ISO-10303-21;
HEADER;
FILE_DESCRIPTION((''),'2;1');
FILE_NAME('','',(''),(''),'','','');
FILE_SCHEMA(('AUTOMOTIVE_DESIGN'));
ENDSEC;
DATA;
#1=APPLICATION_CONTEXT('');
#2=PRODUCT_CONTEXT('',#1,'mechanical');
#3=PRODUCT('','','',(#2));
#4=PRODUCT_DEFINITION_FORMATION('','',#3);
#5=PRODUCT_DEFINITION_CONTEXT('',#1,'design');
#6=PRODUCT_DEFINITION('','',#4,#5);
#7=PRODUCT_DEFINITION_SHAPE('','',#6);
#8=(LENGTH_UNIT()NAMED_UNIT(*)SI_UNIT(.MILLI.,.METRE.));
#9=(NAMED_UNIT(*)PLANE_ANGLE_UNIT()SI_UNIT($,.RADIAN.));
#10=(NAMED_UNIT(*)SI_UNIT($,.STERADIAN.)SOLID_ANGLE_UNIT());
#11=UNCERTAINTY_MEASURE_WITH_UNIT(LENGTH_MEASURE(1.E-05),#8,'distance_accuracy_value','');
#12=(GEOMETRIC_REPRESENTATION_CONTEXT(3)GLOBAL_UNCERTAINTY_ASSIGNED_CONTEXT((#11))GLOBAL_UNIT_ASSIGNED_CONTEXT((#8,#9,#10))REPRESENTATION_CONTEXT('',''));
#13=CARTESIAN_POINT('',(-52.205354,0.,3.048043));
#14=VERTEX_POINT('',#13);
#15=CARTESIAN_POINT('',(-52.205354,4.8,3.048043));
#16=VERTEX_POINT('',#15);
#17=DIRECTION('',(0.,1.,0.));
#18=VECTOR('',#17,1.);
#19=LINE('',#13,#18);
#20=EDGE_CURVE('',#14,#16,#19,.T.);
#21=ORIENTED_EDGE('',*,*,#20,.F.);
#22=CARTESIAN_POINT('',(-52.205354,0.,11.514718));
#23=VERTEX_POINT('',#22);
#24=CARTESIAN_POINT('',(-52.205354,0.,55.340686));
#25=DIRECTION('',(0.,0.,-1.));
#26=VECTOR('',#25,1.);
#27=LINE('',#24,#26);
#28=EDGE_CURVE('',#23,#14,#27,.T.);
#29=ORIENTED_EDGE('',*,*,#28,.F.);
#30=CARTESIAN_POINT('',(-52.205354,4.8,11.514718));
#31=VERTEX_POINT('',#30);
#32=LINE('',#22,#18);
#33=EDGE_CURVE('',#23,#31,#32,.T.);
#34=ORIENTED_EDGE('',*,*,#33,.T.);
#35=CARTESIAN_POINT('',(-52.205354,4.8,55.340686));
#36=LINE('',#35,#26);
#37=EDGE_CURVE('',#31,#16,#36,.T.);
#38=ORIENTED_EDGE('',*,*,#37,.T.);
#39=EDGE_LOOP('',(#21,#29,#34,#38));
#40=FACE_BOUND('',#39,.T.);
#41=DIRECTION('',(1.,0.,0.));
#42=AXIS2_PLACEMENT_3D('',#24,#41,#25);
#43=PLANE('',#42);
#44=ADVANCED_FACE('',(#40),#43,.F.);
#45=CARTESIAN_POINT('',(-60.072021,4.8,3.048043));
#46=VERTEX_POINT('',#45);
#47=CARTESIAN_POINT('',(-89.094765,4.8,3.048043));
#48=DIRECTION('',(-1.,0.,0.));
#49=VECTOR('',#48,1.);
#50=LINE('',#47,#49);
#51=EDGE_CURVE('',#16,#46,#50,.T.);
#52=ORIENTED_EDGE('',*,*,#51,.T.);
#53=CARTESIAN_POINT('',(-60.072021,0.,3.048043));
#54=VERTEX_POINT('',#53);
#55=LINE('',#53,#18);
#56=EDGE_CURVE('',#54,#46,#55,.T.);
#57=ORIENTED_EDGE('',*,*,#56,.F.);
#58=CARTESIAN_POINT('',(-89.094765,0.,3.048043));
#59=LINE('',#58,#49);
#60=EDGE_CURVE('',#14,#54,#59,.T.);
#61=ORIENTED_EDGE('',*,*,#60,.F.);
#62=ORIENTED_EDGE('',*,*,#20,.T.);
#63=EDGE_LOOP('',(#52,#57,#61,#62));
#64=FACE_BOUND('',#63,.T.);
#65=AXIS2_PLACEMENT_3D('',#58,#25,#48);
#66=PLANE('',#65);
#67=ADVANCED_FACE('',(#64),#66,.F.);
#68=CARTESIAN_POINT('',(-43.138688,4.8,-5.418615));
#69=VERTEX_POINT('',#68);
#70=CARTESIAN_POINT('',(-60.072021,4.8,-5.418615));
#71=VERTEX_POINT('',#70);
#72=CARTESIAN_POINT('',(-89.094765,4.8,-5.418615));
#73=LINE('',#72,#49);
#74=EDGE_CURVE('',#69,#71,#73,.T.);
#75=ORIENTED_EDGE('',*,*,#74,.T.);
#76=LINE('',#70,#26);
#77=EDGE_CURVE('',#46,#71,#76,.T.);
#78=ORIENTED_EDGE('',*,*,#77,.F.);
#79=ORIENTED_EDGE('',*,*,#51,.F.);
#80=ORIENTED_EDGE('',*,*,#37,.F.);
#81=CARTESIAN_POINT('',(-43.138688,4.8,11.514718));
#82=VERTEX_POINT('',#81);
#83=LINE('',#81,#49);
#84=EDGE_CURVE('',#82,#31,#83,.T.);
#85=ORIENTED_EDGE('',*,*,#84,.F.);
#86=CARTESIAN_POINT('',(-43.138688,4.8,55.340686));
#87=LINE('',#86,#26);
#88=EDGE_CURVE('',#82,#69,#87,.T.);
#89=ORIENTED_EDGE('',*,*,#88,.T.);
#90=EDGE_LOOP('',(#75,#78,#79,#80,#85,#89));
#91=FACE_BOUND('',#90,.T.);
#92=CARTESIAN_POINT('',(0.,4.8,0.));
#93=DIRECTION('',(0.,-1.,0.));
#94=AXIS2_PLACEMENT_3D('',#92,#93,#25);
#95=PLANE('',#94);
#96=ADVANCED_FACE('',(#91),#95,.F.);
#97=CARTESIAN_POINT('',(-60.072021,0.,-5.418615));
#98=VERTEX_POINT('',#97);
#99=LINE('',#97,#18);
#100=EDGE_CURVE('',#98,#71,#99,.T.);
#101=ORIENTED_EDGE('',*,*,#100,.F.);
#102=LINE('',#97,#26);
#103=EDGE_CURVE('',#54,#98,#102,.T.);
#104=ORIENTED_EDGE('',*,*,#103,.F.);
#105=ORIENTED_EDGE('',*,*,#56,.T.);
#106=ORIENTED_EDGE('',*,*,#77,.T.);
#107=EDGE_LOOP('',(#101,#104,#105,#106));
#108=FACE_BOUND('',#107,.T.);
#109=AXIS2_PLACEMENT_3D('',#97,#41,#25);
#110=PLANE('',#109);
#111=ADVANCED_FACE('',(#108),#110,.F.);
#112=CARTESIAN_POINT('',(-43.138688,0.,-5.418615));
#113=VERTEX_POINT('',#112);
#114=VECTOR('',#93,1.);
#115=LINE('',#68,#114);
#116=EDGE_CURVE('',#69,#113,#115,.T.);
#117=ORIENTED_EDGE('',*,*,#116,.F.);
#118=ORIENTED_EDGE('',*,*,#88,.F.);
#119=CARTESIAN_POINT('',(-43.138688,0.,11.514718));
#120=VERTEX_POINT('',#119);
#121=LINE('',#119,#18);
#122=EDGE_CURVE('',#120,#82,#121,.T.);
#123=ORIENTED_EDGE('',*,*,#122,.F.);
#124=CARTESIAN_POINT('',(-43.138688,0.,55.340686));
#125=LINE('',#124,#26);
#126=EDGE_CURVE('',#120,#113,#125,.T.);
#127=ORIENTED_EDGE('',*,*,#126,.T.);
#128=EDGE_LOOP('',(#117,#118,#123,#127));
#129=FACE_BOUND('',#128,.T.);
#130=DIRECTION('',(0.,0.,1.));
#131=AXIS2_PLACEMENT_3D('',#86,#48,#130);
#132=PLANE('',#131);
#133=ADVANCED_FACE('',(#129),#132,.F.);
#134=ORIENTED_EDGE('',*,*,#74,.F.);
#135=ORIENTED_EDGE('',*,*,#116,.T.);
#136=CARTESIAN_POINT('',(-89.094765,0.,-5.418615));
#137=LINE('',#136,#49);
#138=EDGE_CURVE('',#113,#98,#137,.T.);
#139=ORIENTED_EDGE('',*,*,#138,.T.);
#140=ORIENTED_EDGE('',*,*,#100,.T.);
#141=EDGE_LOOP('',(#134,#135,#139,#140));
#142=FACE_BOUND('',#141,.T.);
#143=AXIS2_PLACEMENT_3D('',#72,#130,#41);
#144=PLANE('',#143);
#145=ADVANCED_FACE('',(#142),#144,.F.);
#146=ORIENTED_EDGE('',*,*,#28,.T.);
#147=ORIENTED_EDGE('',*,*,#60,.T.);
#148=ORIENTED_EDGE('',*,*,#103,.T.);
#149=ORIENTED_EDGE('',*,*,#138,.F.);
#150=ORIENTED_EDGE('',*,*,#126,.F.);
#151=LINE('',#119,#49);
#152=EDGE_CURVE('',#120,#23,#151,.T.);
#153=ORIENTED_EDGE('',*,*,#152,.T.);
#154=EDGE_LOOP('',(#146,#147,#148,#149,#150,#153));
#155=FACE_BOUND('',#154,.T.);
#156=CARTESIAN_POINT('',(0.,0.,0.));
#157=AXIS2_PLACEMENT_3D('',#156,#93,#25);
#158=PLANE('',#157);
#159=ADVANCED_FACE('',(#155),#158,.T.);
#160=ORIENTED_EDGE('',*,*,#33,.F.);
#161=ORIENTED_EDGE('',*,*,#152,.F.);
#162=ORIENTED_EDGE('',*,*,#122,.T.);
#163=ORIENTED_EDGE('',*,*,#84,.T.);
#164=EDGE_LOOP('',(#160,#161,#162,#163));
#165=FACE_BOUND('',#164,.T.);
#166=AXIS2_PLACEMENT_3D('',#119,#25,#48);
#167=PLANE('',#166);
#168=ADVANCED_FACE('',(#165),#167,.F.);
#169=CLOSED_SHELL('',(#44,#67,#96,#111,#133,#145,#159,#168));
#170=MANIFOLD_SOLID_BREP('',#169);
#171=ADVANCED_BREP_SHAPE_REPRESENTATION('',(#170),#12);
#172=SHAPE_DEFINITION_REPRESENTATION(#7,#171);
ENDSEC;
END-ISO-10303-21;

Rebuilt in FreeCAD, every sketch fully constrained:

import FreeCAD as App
import Part
import Sketcher
Q = App.Units.Quantity


def add_polygon(sketch, points):
    """Adds a closed chain of lines whose ends are joined by coincident constraints."""
    first, n = sketch.GeometryCount, len(points)
    for a, b in zip(points, points[1:] + points[:1]):
        sketch.addGeometry(Part.LineSegment(App.Vector(*a, 0), App.Vector(*b, 0)), False)
    for i in range(n):
        sketch.addConstraint(Sketcher.Constraint("Coincident", first + i, 2, first + (i + 1) % n, 1))

doc = App.newDocument("Part")
params = doc.addObject("Spreadsheet::Sheet", "Params")
for row, (alias, value) in enumerate([
    ("pad1_length", "4.8 mm"),
], start=1):
    params.set(f"A{row}", alias)
    params.set(f"B{row}", "=" + value)
    params.setAlias(f"B{row}", alias)

body = doc.addObject("PartDesign::Body", "Body")

# Sketch on XZ plane
sketch1 = body.newObject("Sketcher::SketchObject", "Sketch")
sketch1.AttachmentSupport = (doc.getObject("XZ_Plane"), [""])
sketch1.MapMode = "FlatFace"
add_polygon(sketch1, [(-89, -5), (-89, 55), (-43, 55), (-43, -5)])  # lines 0-3
sketch1.addConstraint(Sketcher.Constraint("Vertical", 0))
sketch1.addConstraint(Sketcher.Constraint("Horizontal", 1))
sketch1.addConstraint(Sketcher.Constraint("Vertical", 2))
sketch1.addConstraint(Sketcher.Constraint("Horizontal", 3))
sketch1.addConstraint(Sketcher.Constraint("DistanceY", 0, 1, 0, 2, Q("60.759301 mm")))
sketch1.addConstraint(Sketcher.Constraint("DistanceX", 1, 1, 1, 2, Q("45.956077 mm")))
sketch1.addConstraint(Sketcher.Constraint("DistanceX", 0, 2, -1, 1, Q("89.094765 mm")))
sketch1.addConstraint(Sketcher.Constraint("DistanceY", -1, 1, 0, 2, Q("55.340686 mm")))
pad1 = body.newObject("PartDesign::Pad", "Pad")
pad1.Profile = sketch1
pad1.setExpression("Length", "Params.pad1_length")
pad1.Reversed = True

# Sketch on XZ plane
sketch2 = body.newObject("Sketcher::SketchObject", "Sketch001")
sketch2.AttachmentSupport = (doc.getObject("XZ_Plane"), [""])
sketch2.MapMode = "FlatFace"
sketch2.AttachmentOffset = App.Placement(App.Vector(0, 0, -4.8), App.Rotation())
add_polygon(sketch2, [(-89, 3), (-89, 55), (-52, 55), (-52, 3)])  # lines 0-3
sketch2.addConstraint(Sketcher.Constraint("Vertical", 0))
sketch2.addConstraint(Sketcher.Constraint("Horizontal", 1))
sketch2.addConstraint(Sketcher.Constraint("Vertical", 2))
sketch2.addConstraint(Sketcher.Constraint("Horizontal", 3))
sketch2.addConstraint(Sketcher.Constraint("DistanceX", 1, 1, 1, 2, Q("36.889411 mm")))
sketch2.addConstraint(Sketcher.Constraint("DistanceY", 0, 1, 0, 2, Q("52.292643 mm")))
sketch2.addConstraint(Sketcher.Constraint("DistanceX", 0, 2, -1, 1, Q("89.094765 mm")))
sketch2.addConstraint(Sketcher.Constraint("DistanceY", -1, 1, 0, 2, Q("55.340686 mm")))
pocket1 = body.newObject("PartDesign::Pocket", "Pocket")
pocket1.Profile = sketch2
pocket1.Type = "ThroughAll"
pocket1.Reversed = True

# Sketch on XZ plane
sketch3 = body.newObject("Sketcher::SketchObject", "Sketch002")
sketch3.AttachmentSupport = (doc.getObject("XZ_Plane"), [""])
sketch3.MapMode = "FlatFace"
sketch3.AttachmentOffset = App.Placement(App.Vector(0, 0, -4.8), App.Rotation())
add_polygon(sketch3, [(-52, 12), (-52, 55), (-43, 55), (-43, 12)])  # lines 0-3
sketch3.addConstraint(Sketcher.Constraint("Vertical", 0))
sketch3.addConstraint(Sketcher.Constraint("Horizontal", 1))
sketch3.addConstraint(Sketcher.Constraint("Vertical", 2))
sketch3.addConstraint(Sketcher.Constraint("Horizontal", 3))
sketch3.addConstraint(Sketcher.Constraint("DistanceX", 1, 1, 1, 2, Q("9.066666 mm")))
sketch3.addConstraint(Sketcher.Constraint("DistanceY", 0, 1, 0, 2, Q("43.825967 mm")))
sketch3.addConstraint(Sketcher.Constraint("DistanceY", -1, 1, 2, 2, Q("11.514718 mm")))
sketch3.addConstraint(Sketcher.Constraint("DistanceX", 0, 2, -1, 1, Q("52.205354 mm")))
pocket2 = body.newObject("PartDesign::Pocket", "Pocket001")
pocket2.Profile = sketch3
pocket2.Type = "ThroughAll"
pocket2.Reversed = True

# Sketch on XZ plane
sketch4 = body.newObject("Sketcher::SketchObject", "Sketch003")
sketch4.AttachmentSupport = (doc.getObject("XZ_Plane"), [""])
sketch4.MapMode = "FlatFace"
sketch4.AttachmentOffset = App.Placement(App.Vector(0, 0, -4.8), App.Rotation())
add_polygon(sketch4, [(-89, -5), (-89, 3), (-60, 3), (-60, -5)])  # lines 0-3
sketch4.addConstraint(Sketcher.Constraint("Vertical", 0))
sketch4.addConstraint(Sketcher.Constraint("Horizontal", 1))
sketch4.addConstraint(Sketcher.Constraint("Vertical", 2))
sketch4.addConstraint(Sketcher.Constraint("Horizontal", 3))
sketch4.addConstraint(Sketcher.Constraint("DistanceY", 0, 1, 0, 2, Q("8.466658 mm")))
sketch4.addConstraint(Sketcher.Constraint("DistanceX", 1, 1, 1, 2, Q("29.022744 mm")))
sketch4.addConstraint(Sketcher.Constraint("DistanceX", 1, 2, -1, 1, Q("60.072021 mm")))
sketch4.addConstraint(Sketcher.Constraint("DistanceY", -1, 1, 0, 2, Q("3.048043 mm")))
pocket3 = body.newObject("PartDesign::Pocket", "Pocket002")
pocket3.Profile = sketch4
pocket3.Type = "ThroughAll"
pocket3.Reversed = True

doc.recompute()
